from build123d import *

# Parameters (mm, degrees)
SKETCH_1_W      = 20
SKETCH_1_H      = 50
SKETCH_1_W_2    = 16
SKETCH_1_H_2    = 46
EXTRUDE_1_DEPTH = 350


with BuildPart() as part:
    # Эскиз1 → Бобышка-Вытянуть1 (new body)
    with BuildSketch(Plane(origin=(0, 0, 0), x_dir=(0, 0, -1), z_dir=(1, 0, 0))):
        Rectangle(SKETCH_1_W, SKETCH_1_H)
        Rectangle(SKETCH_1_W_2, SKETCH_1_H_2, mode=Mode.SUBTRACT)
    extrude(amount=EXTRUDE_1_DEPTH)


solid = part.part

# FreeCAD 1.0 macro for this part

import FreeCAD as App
import Part
import Sketcher
Q = App.Units.Quantity

doc = App.newDocument("Part")
body = doc.addObject("PartDesign::Body", "Body")

sketch1 = body.newObject("Sketcher::SketchObject", "Sketch")
sketch1.AttachmentSupport = (doc.getObject("YZ_Plane"), [""])
sketch1.MapMode = "FlatFace"
sketch1.addGeometry(Part.LineSegment(App.Vector(25, 10, 0), App.Vector(-25, 10, 0)), False)
sketch1.addGeometry(Part.LineSegment(App.Vector(-25, 10, 0), App.Vector(-25, -10, 0)), False)
sketch1.addGeometry(Part.LineSegment(App.Vector(-25, -10, 0), App.Vector(25, -10, 0)), False)
sketch1.addGeometry(Part.LineSegment(App.Vector(25, -10, 0), App.Vector(25, 10, 0)), False)
sketch1.addGeometry(Part.LineSegment(App.Vector(-23, -8, 0), App.Vector(-23, 8, 0)), False)
sketch1.addGeometry(Part.LineSegment(App.Vector(-23, 8, 0), App.Vector(23, 8, 0)), False)
sketch1.addGeometry(Part.LineSegment(App.Vector(23, 8, 0), App.Vector(23, -8, 0)), False)
sketch1.addGeometry(Part.LineSegment(App.Vector(23, -8, 0), App.Vector(-23, -8, 0)), False)
sketch1.addConstraint(Sketcher.Constraint("Coincident", 0, 2, 1, 1))
sketch1.addConstraint(Sketcher.Constraint("Coincident", 1, 2, 2, 1))
sketch1.addConstraint(Sketcher.Constraint("Coincident", 2, 2, 3, 1))
sketch1.addConstraint(Sketcher.Constraint("Coincident", 3, 2, 0, 1))
sketch1.addConstraint(Sketcher.Constraint("Coincident", 4, 2, 5, 1))
sketch1.addConstraint(Sketcher.Constraint("Coincident", 5, 2, 6, 1))
sketch1.addConstraint(Sketcher.Constraint("Coincident", 6, 2, 7, 1))
sketch1.addConstraint(Sketcher.Constraint("Coincident", 7, 2, 4, 1))
sketch1.addConstraint(Sketcher.Constraint("Horizontal", 0))
sketch1.addConstraint(Sketcher.Constraint("Vertical", 1))
sketch1.addConstraint(Sketcher.Constraint("Horizontal", 2))
sketch1.addConstraint(Sketcher.Constraint("Vertical", 3))
sketch1.addConstraint(Sketcher.Constraint("Vertical", 4))
sketch1.addConstraint(Sketcher.Constraint("Horizontal", 5))
sketch1.addConstraint(Sketcher.Constraint("Vertical", 6))
sketch1.addConstraint(Sketcher.Constraint("Horizontal", 7))
sketch1.addConstraint(Sketcher.Constraint("Symmetric", 0, 2, 2, 2, -1, 1))
sketch1.addConstraint(Sketcher.Constraint("Symmetric", 4, 2, 6, 2, -1, 1))
sketch1.addConstraint(Sketcher.Constraint("DistanceX", 0, 2, 0, 1, Q("50 mm")))
sketch1.addConstraint(Sketcher.Constraint("DistanceX", 5, 1, 5, 2, Q("46 mm")))
sketch1.addConstraint(Sketcher.Constraint("DistanceY", 1, 2, 1, 1, Q("20 mm")))
sketch1.addConstraint(Sketcher.Constraint("DistanceY", 4, 1, 4, 2, Q("16 mm")))
pad1 = body.newObject("PartDesign::Pad", "Pad")
pad1.Profile = sketch1
pad1.Length = 350

doc.recompute()
